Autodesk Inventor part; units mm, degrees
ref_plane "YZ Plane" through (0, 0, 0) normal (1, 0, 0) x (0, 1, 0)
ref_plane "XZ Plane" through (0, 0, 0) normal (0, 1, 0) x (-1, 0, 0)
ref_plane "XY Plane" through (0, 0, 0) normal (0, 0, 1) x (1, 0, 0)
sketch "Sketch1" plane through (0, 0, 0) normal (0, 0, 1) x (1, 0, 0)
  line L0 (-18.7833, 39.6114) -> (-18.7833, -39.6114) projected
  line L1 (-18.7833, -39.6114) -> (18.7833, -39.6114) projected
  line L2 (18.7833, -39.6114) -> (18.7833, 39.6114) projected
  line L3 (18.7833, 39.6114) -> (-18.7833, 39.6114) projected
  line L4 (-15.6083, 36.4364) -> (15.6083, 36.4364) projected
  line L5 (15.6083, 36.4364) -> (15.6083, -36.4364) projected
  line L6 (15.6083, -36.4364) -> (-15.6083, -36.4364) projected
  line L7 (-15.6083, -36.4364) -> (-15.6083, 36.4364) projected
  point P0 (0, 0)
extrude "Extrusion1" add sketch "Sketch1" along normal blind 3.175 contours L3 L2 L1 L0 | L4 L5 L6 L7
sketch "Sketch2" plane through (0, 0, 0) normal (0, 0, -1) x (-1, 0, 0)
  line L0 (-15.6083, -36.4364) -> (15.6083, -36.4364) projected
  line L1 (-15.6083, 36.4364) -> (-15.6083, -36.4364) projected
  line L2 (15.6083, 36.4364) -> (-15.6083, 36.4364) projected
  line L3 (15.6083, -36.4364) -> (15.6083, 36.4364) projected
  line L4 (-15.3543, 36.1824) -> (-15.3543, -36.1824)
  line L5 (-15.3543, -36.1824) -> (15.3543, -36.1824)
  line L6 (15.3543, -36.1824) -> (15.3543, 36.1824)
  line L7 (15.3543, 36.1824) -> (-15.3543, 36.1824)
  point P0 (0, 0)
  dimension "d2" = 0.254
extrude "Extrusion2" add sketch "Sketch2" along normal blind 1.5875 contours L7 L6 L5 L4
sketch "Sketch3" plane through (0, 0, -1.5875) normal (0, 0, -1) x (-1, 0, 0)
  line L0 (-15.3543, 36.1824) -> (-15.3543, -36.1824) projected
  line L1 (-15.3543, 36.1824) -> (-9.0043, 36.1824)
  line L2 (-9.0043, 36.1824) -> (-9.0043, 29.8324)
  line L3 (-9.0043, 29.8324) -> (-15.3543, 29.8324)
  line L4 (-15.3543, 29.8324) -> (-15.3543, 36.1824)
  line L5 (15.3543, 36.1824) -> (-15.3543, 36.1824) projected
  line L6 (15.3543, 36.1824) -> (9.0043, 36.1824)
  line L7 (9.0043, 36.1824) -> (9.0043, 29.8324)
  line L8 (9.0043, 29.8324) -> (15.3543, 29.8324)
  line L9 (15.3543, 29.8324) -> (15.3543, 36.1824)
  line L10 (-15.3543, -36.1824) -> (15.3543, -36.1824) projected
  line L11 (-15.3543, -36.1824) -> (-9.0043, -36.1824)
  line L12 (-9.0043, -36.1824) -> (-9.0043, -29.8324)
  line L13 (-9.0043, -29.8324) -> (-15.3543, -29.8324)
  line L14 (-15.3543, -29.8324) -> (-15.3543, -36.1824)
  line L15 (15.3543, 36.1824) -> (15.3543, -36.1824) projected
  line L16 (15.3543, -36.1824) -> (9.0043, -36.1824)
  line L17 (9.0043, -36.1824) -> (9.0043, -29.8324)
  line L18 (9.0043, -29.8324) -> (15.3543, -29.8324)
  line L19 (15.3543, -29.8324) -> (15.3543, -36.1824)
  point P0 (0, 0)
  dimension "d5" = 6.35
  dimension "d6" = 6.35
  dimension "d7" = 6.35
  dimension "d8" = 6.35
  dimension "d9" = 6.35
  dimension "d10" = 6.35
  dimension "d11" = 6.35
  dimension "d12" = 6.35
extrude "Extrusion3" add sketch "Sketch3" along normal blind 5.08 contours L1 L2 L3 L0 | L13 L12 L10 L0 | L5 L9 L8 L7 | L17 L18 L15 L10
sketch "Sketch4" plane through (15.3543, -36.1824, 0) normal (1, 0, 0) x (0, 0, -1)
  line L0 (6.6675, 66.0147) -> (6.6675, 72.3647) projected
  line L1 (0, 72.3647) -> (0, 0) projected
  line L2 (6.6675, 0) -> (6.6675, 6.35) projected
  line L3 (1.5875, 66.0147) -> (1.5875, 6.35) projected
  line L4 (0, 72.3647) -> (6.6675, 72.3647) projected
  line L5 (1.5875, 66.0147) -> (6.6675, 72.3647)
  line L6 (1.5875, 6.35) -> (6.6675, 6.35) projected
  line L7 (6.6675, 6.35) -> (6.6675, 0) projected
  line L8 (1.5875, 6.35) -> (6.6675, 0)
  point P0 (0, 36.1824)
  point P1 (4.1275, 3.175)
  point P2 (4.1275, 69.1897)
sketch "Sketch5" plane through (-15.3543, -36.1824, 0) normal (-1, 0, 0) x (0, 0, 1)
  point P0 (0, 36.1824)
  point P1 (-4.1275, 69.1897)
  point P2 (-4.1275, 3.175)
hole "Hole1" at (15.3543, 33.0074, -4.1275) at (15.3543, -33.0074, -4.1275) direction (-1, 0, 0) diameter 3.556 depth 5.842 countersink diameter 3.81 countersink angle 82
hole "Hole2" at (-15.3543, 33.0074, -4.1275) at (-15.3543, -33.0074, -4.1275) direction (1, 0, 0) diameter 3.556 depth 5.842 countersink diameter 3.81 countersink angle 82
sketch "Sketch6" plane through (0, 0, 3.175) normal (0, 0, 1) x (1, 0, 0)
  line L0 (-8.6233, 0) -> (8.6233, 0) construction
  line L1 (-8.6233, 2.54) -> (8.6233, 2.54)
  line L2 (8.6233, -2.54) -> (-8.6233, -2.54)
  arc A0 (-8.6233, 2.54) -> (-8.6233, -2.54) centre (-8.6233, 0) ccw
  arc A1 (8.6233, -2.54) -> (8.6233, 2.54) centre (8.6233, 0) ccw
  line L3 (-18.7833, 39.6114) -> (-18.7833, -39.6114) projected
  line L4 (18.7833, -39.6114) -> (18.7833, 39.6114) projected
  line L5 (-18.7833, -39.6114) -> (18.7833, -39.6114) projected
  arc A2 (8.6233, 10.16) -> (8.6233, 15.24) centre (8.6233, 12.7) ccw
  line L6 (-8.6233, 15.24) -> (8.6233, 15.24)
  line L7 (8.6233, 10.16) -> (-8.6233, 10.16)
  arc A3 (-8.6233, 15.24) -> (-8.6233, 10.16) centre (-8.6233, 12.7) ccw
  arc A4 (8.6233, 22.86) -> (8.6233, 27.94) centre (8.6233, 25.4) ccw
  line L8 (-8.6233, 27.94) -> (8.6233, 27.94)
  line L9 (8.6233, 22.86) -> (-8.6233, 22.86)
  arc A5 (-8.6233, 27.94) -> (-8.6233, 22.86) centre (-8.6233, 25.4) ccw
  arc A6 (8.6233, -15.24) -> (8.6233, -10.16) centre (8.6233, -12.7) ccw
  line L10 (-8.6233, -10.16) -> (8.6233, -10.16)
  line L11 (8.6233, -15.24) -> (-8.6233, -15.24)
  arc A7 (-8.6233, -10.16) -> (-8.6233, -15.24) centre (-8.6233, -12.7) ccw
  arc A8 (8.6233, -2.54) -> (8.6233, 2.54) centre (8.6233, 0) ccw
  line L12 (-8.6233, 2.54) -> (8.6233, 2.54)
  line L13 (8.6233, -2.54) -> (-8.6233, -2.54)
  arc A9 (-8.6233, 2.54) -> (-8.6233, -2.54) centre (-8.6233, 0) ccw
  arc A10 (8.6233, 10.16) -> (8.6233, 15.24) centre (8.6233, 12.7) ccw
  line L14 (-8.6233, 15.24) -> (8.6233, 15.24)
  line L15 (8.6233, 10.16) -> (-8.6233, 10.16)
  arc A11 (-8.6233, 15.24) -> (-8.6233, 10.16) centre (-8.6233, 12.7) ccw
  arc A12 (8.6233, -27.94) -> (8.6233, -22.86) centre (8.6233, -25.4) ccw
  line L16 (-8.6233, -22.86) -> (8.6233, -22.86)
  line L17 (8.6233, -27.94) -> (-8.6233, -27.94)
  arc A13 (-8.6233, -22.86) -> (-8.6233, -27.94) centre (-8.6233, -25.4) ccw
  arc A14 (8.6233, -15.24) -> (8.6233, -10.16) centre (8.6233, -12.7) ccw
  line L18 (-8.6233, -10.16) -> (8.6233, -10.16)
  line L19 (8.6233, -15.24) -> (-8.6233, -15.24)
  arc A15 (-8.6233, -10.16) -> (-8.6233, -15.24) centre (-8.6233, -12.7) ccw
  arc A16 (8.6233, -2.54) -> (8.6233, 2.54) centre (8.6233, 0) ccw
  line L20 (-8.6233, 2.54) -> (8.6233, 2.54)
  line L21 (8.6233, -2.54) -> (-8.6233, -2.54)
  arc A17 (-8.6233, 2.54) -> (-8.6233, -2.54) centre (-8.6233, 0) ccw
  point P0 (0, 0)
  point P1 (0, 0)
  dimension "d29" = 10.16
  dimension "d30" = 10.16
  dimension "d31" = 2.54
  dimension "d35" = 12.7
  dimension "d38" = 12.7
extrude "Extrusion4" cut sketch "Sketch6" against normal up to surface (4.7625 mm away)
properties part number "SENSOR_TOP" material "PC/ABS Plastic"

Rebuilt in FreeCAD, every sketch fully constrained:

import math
import FreeCAD as App
import Part
import Sketcher

V = App.Vector
Q = App.Units.Quantity


def add_polygon(sketch, points):
    """Adds a closed chain of lines whose ends are joined by coincident constraints."""
    first, n = sketch.GeometryCount, len(points)
    for a, b in zip(points, points[1:] + points[:1]):
        sketch.addGeometry(Part.LineSegment(App.Vector(*a, 0), App.Vector(*b, 0)), False)
    for i in range(n):
        sketch.addConstraint(Sketcher.Constraint("Coincident", first + i, 2, first + (i + 1) % n, 1))

doc = App.newDocument("Part")
params = doc.addObject("Spreadsheet::Sheet", "Params")
for row, (alias, value) in enumerate([
    ("sketch1_width", "1.479 in"),
    ("sketch1_height", "3.119 in"),
    ("pad1_length", "0.125 in"),
    ("sketch2_width", "1.209 in"),
    ("sketch2_height", "2.849 in"),
    ("pad2_length", "0.0625 in"),
    ("sketch3_width", "0.25 in"),
    ("pad3_length", "0.2 in"),
    ("sketch4_diameter", "0.14 in"),
    ("hole_diameter", "0.14 in"),
    ("hole_depth", "0.23 in"),
    ("hole_csink_diameter", "0.15 in"),
    ("sketch5_diameter", "0.14 in"),
    ("hole2_diameter", "0.14 in"),
    ("hole2_depth", "0.23 in"),
    ("hole2_csink_diameter", "0.15 in"),
    ("sketch6_radius", "0.1 in"),
    ("sketch6_width", "0.679 in"),
    ("pocket1_length", "0.1875 in"),
], start=1):
    params.set(f"A{row}", alias)
    params.set(f"B{row}", "=" + value)
    params.setAlias(f"B{row}", alias)

body = doc.addObject("PartDesign::Body", "Body")

sketch1 = doc.addObject("Sketcher::SketchObject", "Sketch")
body.addObject(sketch1)
sketch1.AttachmentSupport = (doc.XY_Plane, [""])
sketch1.MapMode = "FlatFace"
add_polygon(sketch1, [(19, 40), (-19, 40), (-19, -40), (19, -40)])
sketch1.addConstraint([
    Sketcher.Constraint("Horizontal", 0),
    Sketcher.Constraint("Vertical", 1),
    Sketcher.Constraint("Horizontal", 2),
    Sketcher.Constraint("Vertical", 3),
    Sketcher.Constraint("Symmetric", 0, 2, 2, 2, -1, 1),
    Sketcher.Constraint("DistanceX", 0, 2, 0, 1, Q("1.479 in")),
    Sketcher.Constraint("DistanceY", 1, 2, 1, 1, Q("3.119 in")),
])
sketch1.setExpression("Constraints[9]", "Params.sketch1_width")
sketch1.setExpression("Constraints[10]", "Params.sketch1_height")
pad1 = doc.addObject("PartDesign::Pad", "Pad")
body.addObject(pad1)
pad1.Profile = sketch1
pad1.setExpression("Length", "Params.pad1_length")

sketch2 = doc.addObject("Sketcher::SketchObject", "Sketch001")
body.addObject(sketch2)
sketch2.AttachmentSupport = (doc.XY_Plane, [""])
sketch2.MapMode = "FlatFace"
add_polygon(sketch2, [(-15, 36), (15, 36), (15, -36), (-15, -36)])
sketch2.addConstraint([
    Sketcher.Constraint("Horizontal", 0),
    Sketcher.Constraint("Vertical", 1),
    Sketcher.Constraint("Horizontal", 2),
    Sketcher.Constraint("Vertical", 3),
    Sketcher.Constraint("Symmetric", 0, 2, 2, 2, -1, 1),
    Sketcher.Constraint("DistanceX", 0, 1, 0, 2, Q("1.209 in")),
    Sketcher.Constraint("DistanceY", 1, 2, 1, 1, Q("2.849 in")),
])
sketch2.setExpression("Constraints[9]", "Params.sketch2_width")
sketch2.setExpression("Constraints[10]", "Params.sketch2_height")
pad2 = doc.addObject("PartDesign::Pad", "Pad001")
body.addObject(pad2)
pad2.Profile = sketch2
pad2.setExpression("Length", "Params.pad2_length")
pad2.Reversed = True

sketch3 = doc.addObject("Sketcher::SketchObject", "Sketch002")
body.addObject(sketch3)
sketch3.AttachmentSupport = (doc.XY_Plane, [""])
sketch3.MapMode = "FlatFace"
sketch3.AttachmentOffset = App.Placement(V(0, 0, -0.0625 * 25.4), App.Rotation())
add_polygon(sketch3, [(9, 36), (15, 36), (15, 30), (9, 30)])
add_polygon(sketch3, [(9, -30), (15, -30), (15, -36), (9, -36)])
add_polygon(sketch3, [(-15, 36), (-9, 36), (-9, 30), (-15, 30)])
add_polygon(sketch3, [(-9, -30), (-9, -36), (-15, -36), (-15, -30)])
sketch3.addConstraint([
    Sketcher.Constraint("Horizontal", 0),
    Sketcher.Constraint("Vertical", 1),
    Sketcher.Constraint("Horizontal", 2),
    Sketcher.Constraint("Vertical", 3),
    Sketcher.Constraint("Horizontal", 4),
    Sketcher.Constraint("Vertical", 5),
    Sketcher.Constraint("Horizontal", 6),
    Sketcher.Constraint("Vertical", 7),
    Sketcher.Constraint("Horizontal", 8),
    Sketcher.Constraint("Vertical", 9),
    Sketcher.Constraint("Horizontal", 10),
    Sketcher.Constraint("Vertical", 11),
    Sketcher.Constraint("Vertical", 12),
    Sketcher.Constraint("Horizontal", 13),
    Sketcher.Constraint("Vertical", 14),
    Sketcher.Constraint("Horizontal", 15),
    Sketcher.Constraint("Symmetric", 6, 2, 8, 2, -1, 1),
    Sketcher.Constraint("Symmetric", 4, 2, 10, 2, -1, 1),
    Sketcher.Constraint("Symmetric", 3, 2, 12, 2, -1, 1),
    Sketcher.Constraint("Symmetric", 1, 2, 14, 2, -1, 1),
    Sketcher.Constraint("Symmetric", 3, 2, 8, 2, -2),
    Sketcher.Constraint("Symmetric", 1, 2, 10, 2, -2),
    Sketcher.Constraint("Equal", 15, 1),
    Sketcher.Constraint("DistanceX", 0, 1, 0, 2, Q("0.25 in")),
    Sketcher.Constraint("DistanceY", 4, 2, 1, 2, Q("2.349 in")),
    Sketcher.Constraint("DistanceX", 8, 2, 3, 2, Q("0.709 in")),
])
sketch3.setExpression("Constraints[39]", "Params.sketch3_width")
pad3 = doc.addObject("PartDesign::Pad", "Pad002")
body.addObject(pad3)
pad3.Profile = sketch3
pad3.setExpression("Length", "Params.pad3_length")
pad3.Reversed = True

sketch4 = doc.addObject("Sketcher::SketchObject", "Sketch003")
body.addObject(sketch4)
sketch4.AttachmentSupport = (doc.YZ_Plane, [""])
sketch4.MapMode = "FlatFace"
sketch4.AttachmentOffset = App.Placement(V(0, 0, 0.6045 * 25.4), App.Rotation())
sketch4.addGeometry([
    Part.Circle(V(33, -4.1, 0), V(0, 0, 1), 1.8),
    Part.Circle(V(-33, -4.1, 0), V(0, 0, 1), 1.8),
], False)
sketch4.addConstraint([
    Sketcher.Constraint("Equal", 0, 1),
    Sketcher.Constraint("Symmetric", 0, 3, 1, 3, -2),
    Sketcher.Constraint("Diameter", 0, Q("0.14 in")),
    Sketcher.Constraint("DistanceX", 1, 3, 0, 3, Q("2.599 in")),
    Sketcher.Constraint("DistanceY", 0, 3, -1, 1, Q("0.1625 in")),
])
sketch4.setExpression("Constraints[2]", "Params.sketch4_diameter")
doc.recompute()
hole = doc.addObject("PartDesign::Hole", "Hole")
body.addObject(hole)
hole.Profile = sketch4
hole.ThreadType = "None"
hole.setExpression("Diameter", "Params.hole_diameter")
hole.DepthType = "Dimension"
hole.setExpression("Depth", "Params.hole_depth")
hole.DrillPoint = "Flat"
hole.HoleCutType = "Countersink"
hole.setExpression("HoleCutDiameter", "Params.hole_csink_diameter")
hole.HoleCutCountersinkAngle = 82

sketch5 = doc.addObject("Sketcher::SketchObject", "Sketch004")
body.addObject(sketch5)
sketch5.AttachmentSupport = (doc.YZ_Plane, [""])
sketch5.MapMode = "FlatFace"
sketch5.AttachmentOffset = App.Placement(V(0, 0, -0.6045 * 25.4), App.Rotation())
sketch5.addGeometry([
    Part.Circle(V(33, -4.1, 0), V(0, 0, 1), 1.8),
    Part.Circle(V(-33, -4.1, 0), V(0, 0, 1), 1.8),
], False)
sketch5.addConstraint([
    Sketcher.Constraint("Equal", 0, 1),
    Sketcher.Constraint("Symmetric", 0, 3, 1, 3, -2),
    Sketcher.Constraint("Diameter", 0, Q("0.14 in")),
    Sketcher.Constraint("DistanceX", 1, 3, 0, 3, Q("2.599 in")),
    Sketcher.Constraint("DistanceY", 0, 3, -1, 1, Q("0.1625 in")),
])
sketch5.setExpression("Constraints[2]", "Params.sketch5_diameter")
doc.recompute()
hole2 = doc.addObject("PartDesign::Hole", "Hole001")
body.addObject(hole2)
hole2.Profile = sketch5
hole2.ThreadType = "None"
hole2.setExpression("Diameter", "Params.hole2_diameter")
hole2.DepthType = "Dimension"
hole2.setExpression("Depth", "Params.hole2_depth")
hole2.DrillPoint = "Flat"
hole2.HoleCutType = "Countersink"
hole2.setExpression("HoleCutDiameter", "Params.hole2_csink_diameter")
hole2.HoleCutCountersinkAngle = 82
hole2.Reversed = True

sketch6 = doc.addObject("Sketcher::SketchObject", "Sketch005")
body.addObject(sketch6)
sketch6.AttachmentSupport = (doc.XY_Plane, [""])
sketch6.MapMode = "FlatFace"
sketch6.AttachmentOffset = App.Placement(V(0, 0, 0.125 * 25.4), App.Rotation())
sketch6.addGeometry([
    Part.LineSegment(V(8.6, 2.5, 0), V(-8.6, 2.5, 0)),
    Part.ArcOfCircle(Part.Circle(V(-8.6, 0, 0), V(0, 0, 1), 2.5), math.radians(90), math.radians(270)),
    Part.LineSegment(V(-8.6, -2.5, 0), V(8.6, -2.5, 0)),
    Part.ArcOfCircle(Part.Circle(V(8.6, 0, 0), V(0, 0, 1), 2.5), math.radians(-90), math.radians(90)),
    Part.LineSegment(V(-8.6, 10.2, 0), V(8.6, 10.2, 0)),
    Part.ArcOfCircle(Part.Circle(V(8.6, 12.7, 0), V(0, 0, 1), 2.5), math.radians(-90), math.radians(90)),
    Part.LineSegment(V(8.6, 15.2, 0), V(-8.6, 15.2, 0)),
    Part.ArcOfCircle(Part.Circle(V(-8.6, 12.7, 0), V(0, 0, 1), 2.5), math.radians(90), math.radians(270)),
    Part.LineSegment(V(-8.6, 22.9, 0), V(8.6, 22.9, 0)),
    Part.ArcOfCircle(Part.Circle(V(8.6, 25.4, 0), V(0, 0, 1), 2.5), math.radians(-90), math.radians(90)),
    Part.LineSegment(V(8.6, 27.9, 0), V(-8.6, 27.9, 0)),
    Part.ArcOfCircle(Part.Circle(V(-8.6, 25.4, 0), V(0, 0, 1), 2.5), math.radians(90), math.radians(270)),
    Part.LineSegment(V(-8.6, -15.2, 0), V(8.6, -15.2, 0)),
    Part.ArcOfCircle(Part.Circle(V(8.6, -12.7, 0), V(0, 0, 1), 2.5), math.radians(-90), math.radians(90)),
    Part.LineSegment(V(8.6, -10.2, 0), V(-8.6, -10.2, 0)),
    Part.ArcOfCircle(Part.Circle(V(-8.6, -12.7, 0), V(0, 0, 1), 2.5), math.radians(90), math.radians(270)),
    Part.LineSegment(V(-8.6, -27.9, 0), V(8.6, -27.9, 0)),
    Part.ArcOfCircle(Part.Circle(V(8.6, -25.4, 0), V(0, 0, 1), 2.5), math.radians(-90), math.radians(90)),
    Part.LineSegment(V(8.6, -22.9, 0), V(-8.6, -22.9, 0)),
    Part.ArcOfCircle(Part.Circle(V(-8.6, -25.4, 0), V(0, 0, 1), 2.5), math.radians(90), math.radians(270)),
], False)
sketch6.addConstraint([
    Sketcher.Constraint("Tangent", 0, 2, 1, 1),
    Sketcher.Constraint("Tangent", 1, 2, 2, 1),
    Sketcher.Constraint("Tangent", 2, 2, 3, 1),
    Sketcher.Constraint("Tangent", 3, 2, 0, 1),
    Sketcher.Constraint("Tangent", 4, 2, 5, 1),
    Sketcher.Constraint("Tangent", 5, 2, 6, 1),
    Sketcher.Constraint("Tangent", 6, 2, 7, 1),
    Sketcher.Constraint("Tangent", 7, 2, 4, 1),
    Sketcher.Constraint("Tangent", 8, 2, 9, 1),
    Sketcher.Constraint("Tangent", 9, 2, 10, 1),
    Sketcher.Constraint("Tangent", 10, 2, 11, 1),
    Sketcher.Constraint("Tangent", 11, 2, 8, 1),
    Sketcher.Constraint("Tangent", 12, 2, 13, 1),
    Sketcher.Constraint("Tangent", 13, 2, 14, 1),
    Sketcher.Constraint("Tangent", 14, 2, 15, 1),
    Sketcher.Constraint("Tangent", 15, 2, 12, 1),
    Sketcher.Constraint("Tangent", 16, 2, 17, 1),
    Sketcher.Constraint("Tangent", 17, 2, 18, 1),
    Sketcher.Constraint("Tangent", 18, 2, 19, 1),
    Sketcher.Constraint("Tangent", 19, 2, 16, 1),
    Sketcher.Constraint("Horizontal", 0),
    Sketcher.Constraint("Horizontal", 2),
    Sketcher.Constraint("Horizontal", 4),
    Sketcher.Constraint("Horizontal", 6),
    Sketcher.Constraint("Horizontal", 8),
    Sketcher.Constraint("Horizontal", 10),
    Sketcher.Constraint("Horizontal", 12),
    Sketcher.Constraint("Horizontal", 14),
    Sketcher.Constraint("Horizontal", 16),
    Sketcher.Constraint("Horizontal", 18),
    Sketcher.Constraint("Equal", 3, 5),
    Sketcher.Constraint("Equal", 7, 9),
    Sketcher.Constraint("Equal", 11, 13),
    Sketcher.Constraint("Equal", 15, 17),
    Sketcher.Constraint("Symmetric", 1, 3, 3, 3, -1, 1),
    Sketcher.Constraint("Symmetric", 7, 3, 13, 3, -1, 1),
    Sketcher.Constraint("Symmetric", 11, 3, 17, 3, -1, 1),
    Sketcher.Constraint("Vertical", 3, 3, 5, 3),
    Sketcher.Constraint("Vertical", 1, 3, 7, 3),
    Sketcher.Constraint("Vertical", 5, 3, 9, 3),
    Sketcher.Constraint("Vertical", 7, 3, 11, 3),
    Sketcher.Constraint("Vertical", 11, 3, 15, 3),
    Sketcher.Constraint("Vertical", 15, 3, 19, 3),
    Sketcher.Constraint("Radius", 1, Q("0.1 in")),
    Sketcher.Constraint("DistanceY", -1, 1, 5, 3, Q("0.5 in")),
    Sketcher.Constraint("DistanceY", 5, 3, 9, 3, Q("0.5 in")),
    Sketcher.Constraint("DistanceX", 0, 2, 0, 1, Q("0.679 in")),
])
sketch6.setExpression("Constraints[43]", "Params.sketch6_radius")
sketch6.setExpression("Constraints[46]", "Params.sketch6_width")
pocket1 = doc.addObject("PartDesign::Pocket", "Pocket")
body.addObject(pocket1)
pocket1.Profile = sketch6
pocket1.setExpression("Length", "Params.pocket1_length")

doc.recompute()
